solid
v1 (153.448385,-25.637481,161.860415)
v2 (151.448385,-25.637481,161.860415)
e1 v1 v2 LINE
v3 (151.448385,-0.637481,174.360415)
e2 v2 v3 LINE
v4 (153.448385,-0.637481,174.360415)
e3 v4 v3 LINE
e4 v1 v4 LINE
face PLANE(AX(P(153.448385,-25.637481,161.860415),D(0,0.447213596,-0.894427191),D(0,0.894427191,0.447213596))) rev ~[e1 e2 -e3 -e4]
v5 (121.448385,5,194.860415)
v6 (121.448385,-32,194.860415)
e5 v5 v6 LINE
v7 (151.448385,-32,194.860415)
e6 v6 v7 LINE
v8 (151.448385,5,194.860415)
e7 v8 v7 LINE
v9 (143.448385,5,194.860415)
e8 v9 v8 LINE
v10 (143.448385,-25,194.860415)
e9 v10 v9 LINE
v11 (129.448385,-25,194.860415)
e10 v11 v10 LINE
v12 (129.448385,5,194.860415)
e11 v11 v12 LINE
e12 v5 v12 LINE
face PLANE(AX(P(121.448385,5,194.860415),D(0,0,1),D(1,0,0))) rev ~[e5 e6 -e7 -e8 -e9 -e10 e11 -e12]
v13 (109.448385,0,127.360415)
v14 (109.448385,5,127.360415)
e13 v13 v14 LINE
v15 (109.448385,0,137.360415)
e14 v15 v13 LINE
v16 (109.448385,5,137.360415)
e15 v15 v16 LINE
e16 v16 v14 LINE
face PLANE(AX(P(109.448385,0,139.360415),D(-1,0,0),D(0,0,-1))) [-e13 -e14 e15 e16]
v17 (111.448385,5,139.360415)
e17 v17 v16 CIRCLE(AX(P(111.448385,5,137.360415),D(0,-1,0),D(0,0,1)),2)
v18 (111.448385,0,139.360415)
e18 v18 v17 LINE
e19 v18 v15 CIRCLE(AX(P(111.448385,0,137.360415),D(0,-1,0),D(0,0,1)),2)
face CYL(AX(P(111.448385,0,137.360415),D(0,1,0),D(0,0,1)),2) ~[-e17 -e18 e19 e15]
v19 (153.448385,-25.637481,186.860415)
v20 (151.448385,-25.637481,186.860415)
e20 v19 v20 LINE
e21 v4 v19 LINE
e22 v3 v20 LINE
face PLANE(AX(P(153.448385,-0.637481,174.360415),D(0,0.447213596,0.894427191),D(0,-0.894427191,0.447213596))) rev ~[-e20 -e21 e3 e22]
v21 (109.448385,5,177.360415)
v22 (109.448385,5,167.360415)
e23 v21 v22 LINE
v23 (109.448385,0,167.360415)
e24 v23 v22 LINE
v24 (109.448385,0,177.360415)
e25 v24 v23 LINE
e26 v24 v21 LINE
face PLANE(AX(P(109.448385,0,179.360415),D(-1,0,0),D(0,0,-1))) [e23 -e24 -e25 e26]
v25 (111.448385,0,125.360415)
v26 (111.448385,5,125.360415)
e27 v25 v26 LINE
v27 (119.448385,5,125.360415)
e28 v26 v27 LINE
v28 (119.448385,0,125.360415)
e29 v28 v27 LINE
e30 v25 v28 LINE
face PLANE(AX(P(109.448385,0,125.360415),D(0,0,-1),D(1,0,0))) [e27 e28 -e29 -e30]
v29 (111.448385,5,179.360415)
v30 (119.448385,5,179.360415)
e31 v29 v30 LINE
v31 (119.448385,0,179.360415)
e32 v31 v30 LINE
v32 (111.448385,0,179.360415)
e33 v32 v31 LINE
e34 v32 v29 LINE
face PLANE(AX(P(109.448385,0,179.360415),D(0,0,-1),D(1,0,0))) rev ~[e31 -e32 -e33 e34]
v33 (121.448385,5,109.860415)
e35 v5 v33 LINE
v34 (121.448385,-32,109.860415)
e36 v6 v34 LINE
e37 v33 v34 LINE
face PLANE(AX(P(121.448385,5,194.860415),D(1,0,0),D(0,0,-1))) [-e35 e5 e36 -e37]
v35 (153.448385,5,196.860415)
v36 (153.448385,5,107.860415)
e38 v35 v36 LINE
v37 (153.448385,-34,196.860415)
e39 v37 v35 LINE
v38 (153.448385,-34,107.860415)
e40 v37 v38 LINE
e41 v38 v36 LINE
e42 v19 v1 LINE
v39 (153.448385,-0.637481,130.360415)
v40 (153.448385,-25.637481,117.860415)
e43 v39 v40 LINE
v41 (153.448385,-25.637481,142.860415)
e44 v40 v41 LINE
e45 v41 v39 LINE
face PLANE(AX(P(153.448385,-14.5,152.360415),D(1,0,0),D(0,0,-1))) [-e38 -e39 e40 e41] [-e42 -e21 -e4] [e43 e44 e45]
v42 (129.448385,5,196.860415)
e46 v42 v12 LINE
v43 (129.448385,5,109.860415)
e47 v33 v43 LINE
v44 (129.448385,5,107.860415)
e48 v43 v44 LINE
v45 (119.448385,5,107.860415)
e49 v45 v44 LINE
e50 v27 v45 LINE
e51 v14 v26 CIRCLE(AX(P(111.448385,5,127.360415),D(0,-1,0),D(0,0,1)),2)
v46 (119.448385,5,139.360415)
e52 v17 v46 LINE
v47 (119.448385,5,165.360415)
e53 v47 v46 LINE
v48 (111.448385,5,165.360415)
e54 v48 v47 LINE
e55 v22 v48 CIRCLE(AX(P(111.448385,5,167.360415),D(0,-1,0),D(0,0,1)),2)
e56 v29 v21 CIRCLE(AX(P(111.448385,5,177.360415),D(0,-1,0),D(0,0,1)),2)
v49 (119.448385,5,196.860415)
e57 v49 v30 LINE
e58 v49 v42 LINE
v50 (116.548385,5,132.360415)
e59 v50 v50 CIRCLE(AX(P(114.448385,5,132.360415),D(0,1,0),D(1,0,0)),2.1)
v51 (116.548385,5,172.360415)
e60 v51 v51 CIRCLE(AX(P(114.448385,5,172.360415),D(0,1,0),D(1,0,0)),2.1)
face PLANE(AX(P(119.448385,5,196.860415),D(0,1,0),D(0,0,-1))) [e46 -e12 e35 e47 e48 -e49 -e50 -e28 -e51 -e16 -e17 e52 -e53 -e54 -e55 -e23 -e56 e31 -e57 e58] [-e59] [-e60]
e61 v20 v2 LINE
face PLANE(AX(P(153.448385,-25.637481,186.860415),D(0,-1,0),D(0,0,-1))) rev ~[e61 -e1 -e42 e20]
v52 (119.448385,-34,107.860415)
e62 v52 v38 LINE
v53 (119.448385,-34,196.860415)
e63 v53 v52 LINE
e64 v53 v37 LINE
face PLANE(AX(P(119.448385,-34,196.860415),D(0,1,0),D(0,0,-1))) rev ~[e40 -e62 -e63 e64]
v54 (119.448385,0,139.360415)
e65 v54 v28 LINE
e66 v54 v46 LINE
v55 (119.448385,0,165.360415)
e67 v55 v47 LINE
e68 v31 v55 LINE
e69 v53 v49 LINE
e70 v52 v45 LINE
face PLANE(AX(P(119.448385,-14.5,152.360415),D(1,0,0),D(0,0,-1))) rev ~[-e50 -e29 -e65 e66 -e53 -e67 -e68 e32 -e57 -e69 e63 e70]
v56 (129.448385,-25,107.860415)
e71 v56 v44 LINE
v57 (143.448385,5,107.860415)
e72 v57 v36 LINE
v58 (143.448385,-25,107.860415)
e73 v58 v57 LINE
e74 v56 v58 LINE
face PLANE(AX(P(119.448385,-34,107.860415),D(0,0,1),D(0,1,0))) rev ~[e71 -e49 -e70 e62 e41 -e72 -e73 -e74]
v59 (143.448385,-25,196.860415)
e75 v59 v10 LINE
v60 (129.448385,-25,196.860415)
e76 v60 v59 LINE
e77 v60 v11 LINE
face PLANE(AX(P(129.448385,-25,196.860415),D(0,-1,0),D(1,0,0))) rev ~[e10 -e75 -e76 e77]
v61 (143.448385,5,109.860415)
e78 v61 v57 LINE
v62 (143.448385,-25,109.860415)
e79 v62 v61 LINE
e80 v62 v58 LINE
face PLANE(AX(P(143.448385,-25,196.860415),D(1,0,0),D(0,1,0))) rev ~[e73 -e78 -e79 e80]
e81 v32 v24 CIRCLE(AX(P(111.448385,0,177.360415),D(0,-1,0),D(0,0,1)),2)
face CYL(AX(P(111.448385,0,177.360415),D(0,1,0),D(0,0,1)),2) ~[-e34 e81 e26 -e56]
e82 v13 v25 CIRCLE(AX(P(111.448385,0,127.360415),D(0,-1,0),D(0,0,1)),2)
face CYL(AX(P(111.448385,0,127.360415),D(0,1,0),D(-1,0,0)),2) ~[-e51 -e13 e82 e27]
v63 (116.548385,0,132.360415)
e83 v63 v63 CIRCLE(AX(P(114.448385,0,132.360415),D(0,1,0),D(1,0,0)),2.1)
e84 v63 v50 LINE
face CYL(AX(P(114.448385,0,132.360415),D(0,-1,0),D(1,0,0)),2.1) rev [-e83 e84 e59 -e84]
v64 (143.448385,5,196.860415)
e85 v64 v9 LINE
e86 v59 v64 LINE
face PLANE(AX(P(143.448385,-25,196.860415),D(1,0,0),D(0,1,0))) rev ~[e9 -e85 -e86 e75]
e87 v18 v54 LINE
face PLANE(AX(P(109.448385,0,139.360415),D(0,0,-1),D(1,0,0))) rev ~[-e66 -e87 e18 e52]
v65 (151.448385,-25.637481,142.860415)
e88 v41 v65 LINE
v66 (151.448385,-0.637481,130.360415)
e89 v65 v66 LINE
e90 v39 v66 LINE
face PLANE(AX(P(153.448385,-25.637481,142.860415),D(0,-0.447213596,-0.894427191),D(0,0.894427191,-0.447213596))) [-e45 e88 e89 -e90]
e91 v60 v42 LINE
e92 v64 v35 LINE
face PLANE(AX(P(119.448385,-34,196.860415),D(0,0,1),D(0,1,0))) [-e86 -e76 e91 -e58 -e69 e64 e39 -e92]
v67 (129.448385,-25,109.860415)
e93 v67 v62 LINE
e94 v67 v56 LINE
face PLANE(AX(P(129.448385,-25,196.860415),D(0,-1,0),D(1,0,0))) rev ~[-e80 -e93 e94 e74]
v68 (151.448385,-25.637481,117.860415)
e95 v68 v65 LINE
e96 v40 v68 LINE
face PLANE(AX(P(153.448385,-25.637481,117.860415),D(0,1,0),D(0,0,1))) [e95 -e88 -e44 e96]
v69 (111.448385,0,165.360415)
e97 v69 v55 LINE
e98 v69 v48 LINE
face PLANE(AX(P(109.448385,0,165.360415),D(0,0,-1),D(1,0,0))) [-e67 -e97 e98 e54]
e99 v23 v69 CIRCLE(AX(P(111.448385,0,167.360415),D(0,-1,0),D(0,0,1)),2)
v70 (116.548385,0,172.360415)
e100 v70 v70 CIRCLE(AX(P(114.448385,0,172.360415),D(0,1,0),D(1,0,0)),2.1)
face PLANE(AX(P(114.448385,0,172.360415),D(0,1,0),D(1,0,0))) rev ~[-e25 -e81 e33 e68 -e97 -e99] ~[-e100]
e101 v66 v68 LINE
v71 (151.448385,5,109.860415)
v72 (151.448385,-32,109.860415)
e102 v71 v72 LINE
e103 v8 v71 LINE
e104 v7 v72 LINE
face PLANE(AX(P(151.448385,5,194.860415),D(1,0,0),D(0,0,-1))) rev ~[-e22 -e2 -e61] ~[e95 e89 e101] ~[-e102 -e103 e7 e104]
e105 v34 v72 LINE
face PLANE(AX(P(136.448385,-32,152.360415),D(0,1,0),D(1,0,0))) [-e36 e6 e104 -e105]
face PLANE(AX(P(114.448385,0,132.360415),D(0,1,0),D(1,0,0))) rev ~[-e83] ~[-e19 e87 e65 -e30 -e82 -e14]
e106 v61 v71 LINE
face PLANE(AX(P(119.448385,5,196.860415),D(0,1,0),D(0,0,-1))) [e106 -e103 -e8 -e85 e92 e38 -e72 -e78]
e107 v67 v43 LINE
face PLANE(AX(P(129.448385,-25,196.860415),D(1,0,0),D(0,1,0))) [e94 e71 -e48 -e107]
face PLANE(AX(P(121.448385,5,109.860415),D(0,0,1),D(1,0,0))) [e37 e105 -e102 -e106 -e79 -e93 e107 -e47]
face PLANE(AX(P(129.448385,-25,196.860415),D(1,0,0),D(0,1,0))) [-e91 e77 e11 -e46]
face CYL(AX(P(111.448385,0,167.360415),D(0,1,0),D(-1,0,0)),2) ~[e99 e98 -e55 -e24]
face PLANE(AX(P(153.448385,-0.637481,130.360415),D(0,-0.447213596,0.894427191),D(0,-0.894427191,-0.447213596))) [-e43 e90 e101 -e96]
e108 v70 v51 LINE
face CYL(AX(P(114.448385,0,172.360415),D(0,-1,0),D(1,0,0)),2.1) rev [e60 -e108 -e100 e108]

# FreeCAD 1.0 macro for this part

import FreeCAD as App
import Part
import Sketcher

V = App.Vector
Q = App.Units.Quantity


def edges_at(feature, points):
    """Names of the edges that pass closest to the given points."""
    edges = feature.Shape.Edges
    near = lambda p: min(range(len(edges)), key=lambda i: edges[i].distToShape(Part.Vertex(*p))[0])
    return sorted({f"Edge{near(p) + 1}" for p in points})


def add_polygon(sketch, points):
    """Adds a closed chain of lines whose ends are joined by coincident constraints."""
    first, n = sketch.GeometryCount, len(points)
    for a, b in zip(points, points[1:] + points[:1]):
        sketch.addGeometry(Part.LineSegment(App.Vector(*a, 0), App.Vector(*b, 0)), False)
    for i in range(n):
        sketch.addConstraint(Sketcher.Constraint("Coincident", first + i, 2, first + (i + 1) % n, 1))

doc = App.newDocument("Part")
params = doc.addObject("Spreadsheet::Sheet", "Params")
for row, (alias, value) in enumerate([
    ("sketch1_diameter", "4.2 mm"),
    ("sketch1_width", "10 mm"),
    ("sketch1_height", "14 mm"),
    ("pad1_length", "5 mm"),
    ("sketch2_diameter", "4.2 mm"),
    ("sketch2_width", "10 mm"),
    ("sketch2_height", "14 mm"),
    ("pad2_length", "5 mm"),
    ("sketch3_width", "39 mm"),
    ("sketch3_height", "89 mm"),
    ("pad3_length", "2 mm"),
    ("sketch4_width", "39 mm"),
    ("sketch4_width2", "37 mm"),
    ("sketch4_height", "2 mm"),
    ("sketch4_height2", "89 mm"),
    ("pad4_length", "32 mm"),
    ("sketch5_width", "2 mm"),
    ("sketch5_height", "85 mm"),
    ("pad5_length", "37 mm"),
    ("sketch6_width", "14 mm"),
    ("sketch6_height", "30 mm"),
    ("pocket1_length", "200 mm"),
    ("sketch7_width", "20 mm"),
    ("pocket2_length", "16 mm"),
    ("fillet_radius", "2 mm"),
    ("pocket3_length", "32 mm"),
    ("sketch9_width", "35 mm"),
    ("sketch9_height", "100 mm"),
    ("pad6_length", "2 mm"),
    ("sketch10_width", "4 mm"),
    ("sketch10_height", "89 mm"),
    ("pocket4_length", "10 mm"),
    ("sketch11_width", "35 mm"),
    ("sketch11_width2", "37 mm"),
    ("sketch11_height", "2 mm"),
    ("sketch11_height2", "104 mm"),
    ("pad7_length", "25 mm"),
    ("sketch12_width", "37 mm"),
    ("sketch12_width2", "35 mm"),
    ("sketch12_height", "104 mm"),
    ("sketch12_height2", "2 mm"),
    ("pad8_length", "2 mm"),
    ("sketch13_width", "37 mm"),
    ("sketch13_height", "104 mm"),
    ("sketch13_height2", "20 mm"),
    ("pad9_length", "2 mm"),
    ("sketch14_width", "13 mm"),
    ("sketch14_height", "30 mm"),
    ("pocket5_length", "104 mm"),
    ("pocket6_length", "27 mm"),
    ("pocket7_length", "2 mm"),
    ("sketch17_width", "39 mm"),
    ("sketch17_height", "89 mm"),
    ("pad10_length", "34 mm"),
    ("sketch18_width", "30 mm"),
    ("sketch18_height", "85 mm"),
    ("pocket8_length", "37 mm"),
    ("sketch19_width", "14 mm"),
    ("sketch19_height", "30 mm"),
    ("pocket9_length", "93 mm"),
    ("sketch20_height", "25 mm"),
    ("pocket10_length", "17 mm"),
], start=1):
    params.set(f"A{row}", alias)
    params.set(f"B{row}", "=" + value)
    params.setAlias(f"B{row}", alias)

body = doc.addObject("PartDesign::Body", "Body")

# Sketch on XZ plane
sketch1 = doc.addObject("Sketcher::SketchObject", "Sketch")
body.addObject(sketch1)
sketch1.AttachmentSupport = (doc.XZ_Plane, [""])
sketch1.MapMode = "FlatFace"
add_polygon(sketch1, [(109.4, 125.4), (109.4, 139.4), (119.4, 139.4), (119.4, 125.4)])  # lines 0-3
sketch1.addGeometry(Part.Circle(V(114.4, 132.4, 0), V(0, 0, 1), 2.1), False)  # 4
sketch1.addConstraint([
    Sketcher.Constraint("Vertical", 0),
    Sketcher.Constraint("Horizontal", 1),
    Sketcher.Constraint("Vertical", 2),
    Sketcher.Constraint("Horizontal", 3),
    Sketcher.Constraint("Diameter", 4, 4.2),
    Sketcher.Constraint("DistanceX", 1, 1, 1, 2, 10.0),
    Sketcher.Constraint("DistanceY", 0, 1, 0, 2, 14.0),
    Sketcher.Constraint("DistanceX", 0, 2, 4, 3, 5.0),
    Sketcher.Constraint("DistanceY", 4, 3, 0, 2, 7.0),
    Sketcher.Constraint("DistanceX", -1, 1, 4, 3, 114.448385),
    Sketcher.Constraint("DistanceY", -1, 1, 4, 3, 132.360415),
])
sketch1.setExpression("Constraints[8]", "Params.sketch1_diameter")
sketch1.setExpression("Constraints[9]", "Params.sketch1_width")
sketch1.setExpression("Constraints[10]", "Params.sketch1_height")
pad1 = doc.addObject("PartDesign::Pad", "Pad")
body.addObject(pad1)
pad1.Profile = sketch1
pad1.setExpression("Length", "Params.pad1_length")
pad1.Reversed = True
body2 = doc.addObject("PartDesign::Body", "Body001")

# Sketch on XZ plane
sketch2 = doc.addObject("Sketcher::SketchObject", "Sketch001")
body2.addObject(sketch2)
sketch2.AttachmentSupport = (doc.getObject("XZ_Plane001"), [""])
sketch2.MapMode = "FlatFace"
add_polygon(sketch2, [(109.4, 165.4), (109.4, 179.4), (119.4, 179.4), (119.4, 165.4)])  # lines 0-3
sketch2.addGeometry(Part.Circle(V(114.4, 172.4, 0), V(0, 0, 1), 2.1), False)  # 4
sketch2.addConstraint([
    Sketcher.Constraint("Vertical", 0),
    Sketcher.Constraint("Horizontal", 1),
    Sketcher.Constraint("Vertical", 2),
    Sketcher.Constraint("Horizontal", 3),
    Sketcher.Constraint("Diameter", 4, 4.2),
    Sketcher.Constraint("DistanceX", 1, 1, 1, 2, 10.0),
    Sketcher.Constraint("DistanceY", 0, 1, 0, 2, 14.0),
    Sketcher.Constraint("DistanceX", 0, 2, 4, 3, 5.0),
    Sketcher.Constraint("DistanceY", 4, 3, 0, 2, 7.0),
    Sketcher.Constraint("DistanceX", -1, 1, 4, 3, 114.448385),
    Sketcher.Constraint("DistanceY", -1, 1, 4, 3, 172.360415),
])
sketch2.setExpression("Constraints[8]", "Params.sketch2_diameter")
sketch2.setExpression("Constraints[9]", "Params.sketch2_width")
sketch2.setExpression("Constraints[10]", "Params.sketch2_height")
pad2 = doc.addObject("PartDesign::Pad", "Pad001")
body2.addObject(pad2)
pad2.Profile = sketch2
pad2.setExpression("Length", "Params.pad2_length")
pad2.Reversed = True
body.AllowCompound = True
doc.recompute()

boolean = doc.addObject("PartDesign::Boolean", "Boolean")
body.addObject(boolean)
boolean.Type = "Fuse"
boolean.addObjects([body2])

# Sketch on YZ plane
sketch3 = doc.addObject("Sketcher::SketchObject", "Sketch002")
body.addObject(sketch3)
sketch3.AttachmentSupport = (doc.YZ_Plane, [""])
sketch3.MapMode = "FlatFace"
sketch3.AttachmentOffset = App.Placement(V(0, 0, 119.448385), App.Rotation())
add_polygon(sketch3, [(5, 197), (-34, 197), (-34, 108), (5, 108)])  # lines 0-3
sketch3.addConstraint([
    Sketcher.Constraint("Horizontal", 0),
    Sketcher.Constraint("Vertical", 1),
    Sketcher.Constraint("Horizontal", 2),
    Sketcher.Constraint("Vertical", 3),
    Sketcher.Constraint("DistanceX", 0, 2, 0, 1, 39.0),
    Sketcher.Constraint("DistanceY", 1, 2, 1, 1, 89.0),
    Sketcher.Constraint("DistanceX", 0, 2, -1, 1, 34.0),
    Sketcher.Constraint("DistanceY", -1, 1, 0, 2, 196.860415),
])
sketch3.setExpression("Constraints[8]", "Params.sketch3_width")
sketch3.setExpression("Constraints[9]", "Params.sketch3_height")
pad3 = doc.addObject("PartDesign::Pad", "Pad002")
body.addObject(pad3)
pad3.Profile = sketch3
pad3.setExpression("Length", "Params.pad3_length")

# Sketch on YZ plane
sketch4 = doc.addObject("Sketcher::SketchObject", "Sketch003")
body.addObject(sketch4)
sketch4.AttachmentSupport = (doc.YZ_Plane, [""])
sketch4.MapMode = "FlatFace"
sketch4.AttachmentOffset = App.Placement(V(0, 0, 121.448385), App.Rotation())
add_polygon(sketch4, [(5, 194.9), (5, 196.9), (-34, 196.9), (-34, 107.9), (5, 107.9), (5, 109.9), (-32, 109.9), (-32, 194.9)])  # lines 0-7
sketch4.addConstraint([
    Sketcher.Constraint("Vertical", 0),
    Sketcher.Constraint("Horizontal", 1),
    Sketcher.Constraint("Vertical", 2),
    Sketcher.Constraint("Horizontal", 3),
    Sketcher.Constraint("Vertical", 4),
    Sketcher.Constraint("Horizontal", 5),
    Sketcher.Constraint("Vertical", 6),
    Sketcher.Constraint("Horizontal", 7),
    Sketcher.Constraint("Vertical", 0, 2, 3, 2),
    Sketcher.Constraint("Equal", 0, 4),
    Sketcher.Constraint("DistanceX", 1, 2, 1, 1, 39.0),
    Sketcher.Constraint("DistanceX", 5, 2, 5, 1, 37.0),
    Sketcher.Constraint("DistanceY", 0, 1, 0, 2, 2.0),
    Sketcher.Constraint("DistanceY", 2, 2, 2, 1, 89.0),
    Sketcher.Constraint("DistanceX", -1, 1, 0, 2, 5.0),
    Sketcher.Constraint("DistanceY", -1, 1, 0, 2, 196.860415),
])
sketch4.setExpression("Constraints[18]", "Params.sketch4_width")
sketch4.setExpression("Constraints[19]", "Params.sketch4_width2")
sketch4.setExpression("Constraints[20]", "Params.sketch4_height")
sketch4.setExpression("Constraints[21]", "Params.sketch4_height2")
pad4 = doc.addObject("PartDesign::Pad", "Pad003")
body.addObject(pad4)
pad4.Profile = sketch4
pad4.setExpression("Length", "Params.pad4_length")

# Sketch on XZ plane
sketch5 = doc.addObject("Sketcher::SketchObject", "Sketch004")
body.addObject(sketch5)
sketch5.AttachmentSupport = (doc.XZ_Plane, [""])
sketch5.MapMode = "FlatFace"
sketch5.AttachmentOffset = App.Placement(V(0, 0, 32), App.Rotation())
add_polygon(sketch5, [(151.4, 109.9), (151.4, 194.9), (153.4, 194.9), (153.4, 109.9)])  # lines 0-3
sketch5.addConstraint([
    Sketcher.Constraint("Vertical", 0),
    Sketcher.Constraint("Horizontal", 1),
    Sketcher.Constraint("Vertical", 2),
    Sketcher.Constraint("Horizontal", 3),
    Sketcher.Constraint("DistanceX", 1, 1, 1, 2, 2.0),
    Sketcher.Constraint("DistanceY", 0, 1, 0, 2, 85.0),
    Sketcher.Constraint("DistanceX", -1, 1, 0, 2, 151.448385),
    Sketcher.Constraint("DistanceY", -1, 1, 0, 2, 194.860415),
])
sketch5.setExpression("Constraints[8]", "Params.sketch5_width")
sketch5.setExpression("Constraints[9]", "Params.sketch5_height")
pad5 = doc.addObject("PartDesign::Pad", "Pad004")
body.addObject(pad5)
pad5.Profile = sketch5
pad5.setExpression("Length", "Params.pad5_length")
pad5.Reversed = True

# Sketch on XY plane
sketch6 = doc.addObject("Sketcher::SketchObject", "Sketch005")
body.addObject(sketch6)
sketch6.AttachmentSupport = (doc.XY_Plane, [""])
sketch6.MapMode = "FlatFace"
sketch6.AttachmentOffset = App.Placement(V(0, 0, 196.860415), App.Rotation())
add_polygon(sketch6, [(129, 5), (129, -25), (143, -25), (143, 5)])  # lines 0-3
sketch6.addConstraint([
    Sketcher.Constraint("Vertical", 0),
    Sketcher.Constraint("Horizontal", 1),
    Sketcher.Constraint("Vertical", 2),
    Sketcher.Constraint("Horizontal", 3),
    Sketcher.Constraint("DistanceX", 1, 1, 1, 2, 14.0),
    Sketcher.Constraint("DistanceY", 0, 2, 0, 1, 30.0),
    Sketcher.Constraint("DistanceY", 0, 2, -1, 1, 25.0),
    Sketcher.Constraint("DistanceX", -1, 1, 0, 2, 129.448385),
])
sketch6.setExpression("Constraints[8]", "Params.sketch6_width")
sketch6.setExpression("Constraints[9]", "Params.sketch6_height")
pocket1 = doc.addObject("PartDesign::Pocket", "Pocket")
body.addObject(pocket1)
pocket1.Profile = sketch6
pocket1.setExpression("Length", "Params.pocket1_length")

# Sketch on YZ plane
sketch7 = doc.addObject("Sketcher::SketchObject", "Sketch006")
body.addObject(sketch7)
sketch7.AttachmentSupport = (doc.YZ_Plane, [""])
sketch7.MapMode = "FlatFace"
sketch7.AttachmentOffset = App.Placement(V(0, 0, 153.448385), App.Rotation())
add_polygon(sketch7, [(-4, 189), (-24, 189), (-24, 169), (-4, 169)])  # lines 0-3
add_polygon(sketch7, [(-4, 162), (-24, 162), (-24, 142), (-4, 142)])  # lines 4-7
add_polygon(sketch7, [(-4, 135), (-24, 135), (-24, 115), (-4, 115)])  # lines 8-11
sketch7.addConstraint([
    Sketcher.Constraint("Horizontal", 0),
    Sketcher.Constraint("Vertical", 1),
    Sketcher.Constraint("Horizontal", 2),
    Sketcher.Constraint("Vertical", 3),
    Sketcher.Constraint("Horizontal", 4),
    Sketcher.Constraint("Vertical", 5),
    Sketcher.Constraint("Horizontal", 6),
    Sketcher.Constraint("Vertical", 7),
    Sketcher.Constraint("Horizontal", 8),
    Sketcher.Constraint("Vertical", 9),
    Sketcher.Constraint("Horizontal", 10),
    Sketcher.Constraint("Vertical", 11),
    Sketcher.Constraint("Vertical", 1, 2, 4, 2),
    Sketcher.Constraint("Vertical", 3, 2, 6, 2),
    Sketcher.Constraint("Vertical", 5, 2, 8, 2),
    Sketcher.Constraint("Vertical", 7, 2, 10, 2),
    Sketcher.Constraint("Equal", 10, 1),
    Sketcher.Constraint("Equal", 3, 5),
    Sketcher.Constraint("Equal", 7, 9),
    Sketcher.Constraint("DistanceX", 0, 2, 0, 1, 20.0),
    Sketcher.Constraint("DistanceY", 4, 2, 1, 2, 7.0),
    Sketcher.Constraint("DistanceY", 8, 2, 5, 2, 7.0),
    Sketcher.Constraint("DistanceX", 0, 2, -1, 1, 24.5),
    Sketcher.Constraint("DistanceY", -1, 1, 0, 2, 189.360415),
])
sketch7.setExpression("Constraints[31]", "Params.sketch7_width")
pocket2 = doc.addObject("PartDesign::Pocket", "Pocket001")
body.addObject(pocket2)
pocket2.Profile = sketch7
pocket2.setExpression("Length", "Params.pocket2_length")
doc.recompute()

fillet = doc.addObject("PartDesign::Fillet", "Fillet")
body.addObject(fillet)
fillet.Base = (pocket2, edges_at(pocket2, [
    (109.448, 2.5, 139.36),
    (109.448, 2.5, 125.36),
    (109.448, 2.5, 179.36),
    (109.448, 2.5, 165.36),
]))
fillet.setExpression("Radius", "Params.fillet_radius")

# Sketch on YZ plane
sketch8 = doc.addObject("Sketcher::SketchObject", "Sketch007")
body.addObject(sketch8)
sketch8.AttachmentSupport = (doc.YZ_Plane, [""])
sketch8.MapMode = "FlatFace"
sketch8.AttachmentOffset = App.Placement(V(0, 0, 153.448385), App.Rotation())
add_polygon(sketch8, [(12, 208), (-43, 208), (-43, 89), (12, 89)])  # lines 0-3
sketch8.addConstraint([
    Sketcher.Constraint("Horizontal", 0),
    Sketcher.Constraint("Vertical", 1),
    Sketcher.Constraint("Horizontal", 2),
    Sketcher.Constraint("Vertical", 3),
    Sketcher.Constraint("DistanceX", 0, 2, 0, 1, 55.607641),
    Sketcher.Constraint("DistanceY", 1, 2, 1, 1, 119.619461),
    Sketcher.Constraint("DistanceX", 0, 2, -1, 1, 43.138837),
    Sketcher.Constraint("DistanceY", -1, 1, 0, 2, 208.388265),
])
pocket3 = doc.addObject("PartDesign::Pocket", "Pocket002")
body.addObject(pocket3)
pocket3.Profile = sketch8
pocket3.setExpression("Length", "Params.pocket3_length")

# Sketch on YZ plane
sketch9 = doc.addObject("Sketcher::SketchObject", "Sketch008")
body.addObject(sketch9)
sketch9.AttachmentSupport = (doc.YZ_Plane, [""])
sketch9.MapMode = "FlatFace"
sketch9.AttachmentOffset = App.Placement(V(0, 0, 121.448385), App.Rotation())
add_polygon(sketch9, [(5, 202), (-30, 202), (-30, 102), (5, 102)])  # lines 0-3
sketch9.addConstraint([
    Sketcher.Constraint("Horizontal", 0),
    Sketcher.Constraint("Vertical", 1),
    Sketcher.Constraint("Horizontal", 2),
    Sketcher.Constraint("Vertical", 3),
    Sketcher.Constraint("DistanceX", 0, 2, 0, 1, 35.0),
    Sketcher.Constraint("DistanceY", 1, 2, 1, 1, 100.0),
    Sketcher.Constraint("DistanceX", 0, 2, -1, 1, 30.0),
    Sketcher.Constraint("DistanceY", -1, 1, 0, 2, 202.360415),
])
sketch9.setExpression("Constraints[8]", "Params.sketch9_width")
sketch9.setExpression("Constraints[9]", "Params.sketch9_height")
pad6 = doc.addObject("PartDesign::Pad", "Pad005")
body.addObject(pad6)
pad6.Profile = sketch9
pad6.setExpression("Length", "Params.pad6_length")
pad6.Reversed = True

# Sketch on YZ plane
sketch10 = doc.addObject("Sketcher::SketchObject", "Sketch009")
body.addObject(sketch10)
sketch10.AttachmentSupport = (doc.YZ_Plane, [""])
sketch10.MapMode = "FlatFace"
sketch10.AttachmentOffset = App.Placement(V(0, 0, 121.448385), App.Rotation())
add_polygon(sketch10, [(-30, 196.9), (-34, 196.9), (-34, 107.9), (-30, 107.9)])  # lines 0-3
sketch10.addConstraint([
    Sketcher.Constraint("Horizontal", 0),
    Sketcher.Constraint("Vertical", 1),
    Sketcher.Constraint("Horizontal", 2),
    Sketcher.Constraint("Vertical", 3),
    Sketcher.Constraint("DistanceX", 0, 2, 0, 1, 4.0),
    Sketcher.Constraint("DistanceY", 1, 2, 1, 1, 89.0),
    Sketcher.Constraint("DistanceX", 0, 2, -1, 1, 34.0),
    Sketcher.Constraint("DistanceY", -1, 1, 0, 2, 196.860415),
])
sketch10.setExpression("Constraints[8]", "Params.sketch10_width")
sketch10.setExpression("Constraints[9]", "Params.sketch10_height")
pocket4 = doc.addObject("PartDesign::Pocket", "Pocket003")
body.addObject(pocket4)
pocket4.Profile = sketch10
pocket4.setExpression("Length", "Params.pocket4_length")
body3 = doc.addObject("PartDesign::Body", "Body002")

# Sketch on YZ plane
sketch11 = doc.addObject("Sketcher::SketchObject", "Sketch010")
body3.addObject(sketch11)
sketch11.AttachmentSupport = (doc.getObject("YZ_Plane002"), [""])
sketch11.MapMode = "FlatFace"
sketch11.AttachmentOffset = App.Placement(V(0, 0, 121.448385), App.Rotation())
add_polygon(sketch11, [(-30, 202.4), (5, 202.4), (5, 204.4), (-32, 204.4), (-32, 100.4), (5, 100.4), (5, 102.4), (-30, 102.4)])  # lines 0-7
sketch11.addConstraint([
    Sketcher.Constraint("Horizontal", 0),
    Sketcher.Constraint("Vertical", 1),
    Sketcher.Constraint("Horizontal", 2),
    Sketcher.Constraint("Vertical", 3),
    Sketcher.Constraint("Horizontal", 4),
    Sketcher.Constraint("Vertical", 5),
    Sketcher.Constraint("Horizontal", 6),
    Sketcher.Constraint("Vertical", 7),
    Sketcher.Constraint("Vertical", 1, 2, 4, 2),
    Sketcher.Constraint("Equal", 1, 5),
    Sketcher.Constraint("DistanceX", 0, 1, 0, 2, 35.0),
    Sketcher.Constraint("DistanceX", 2, 2, 2, 1, 37.0),
    Sketcher.Constraint("DistanceY", 1, 1, 1, 2, 2.0),
    Sketcher.Constraint("DistanceY", 3, 2, 3, 1, 104.0),
    Sketcher.Constraint("DistanceX", -1, 1, 0, 2, 5.0),
    Sketcher.Constraint("DistanceY", -1, 1, 0, 2, 202.360415),
])
sketch11.setExpression("Constraints[18]", "Params.sketch11_width")
sketch11.setExpression("Constraints[19]", "Params.sketch11_width2")
sketch11.setExpression("Constraints[20]", "Params.sketch11_height")
sketch11.setExpression("Constraints[21]", "Params.sketch11_height2")
pad7 = doc.addObject("PartDesign::Pad", "Pad006")
body3.addObject(pad7)
pad7.Profile = sketch11
pad7.setExpression("Length", "Params.pad7_length")
body.AllowCompound = True
doc.recompute()

boolean2 = doc.addObject("PartDesign::Boolean", "Boolean001")
body.addObject(boolean2)
boolean2.Type = "Fuse"
boolean2.addObjects([body3])

# Sketch on YZ plane
sketch12 = doc.addObject("Sketcher::SketchObject", "Sketch011")
body.addObject(sketch12)
sketch12.AttachmentSupport = (doc.YZ_Plane, [""])
sketch12.MapMode = "FlatFace"
sketch12.AttachmentOffset = App.Placement(V(0, 0, 121.448385), App.Rotation())
add_polygon(sketch12, [(5, 100.4), (-32, 100.4), (-32, 204.4), (5, 204.4), (5, 202.4), (-30, 202.4), (-30, 102.4), (5, 102.4)])  # lines 0-7
sketch12.addConstraint([
    Sketcher.Constraint("Horizontal", 0),
    Sketcher.Constraint("Vertical", 1),
    Sketcher.Constraint("Horizontal", 2),
    Sketcher.Constraint("Vertical", 3),
    Sketcher.Constraint("Horizontal", 4),
    Sketcher.Constraint("Vertical", 5),
    Sketcher.Constraint("Horizontal", 6),
    Sketcher.Constraint("Vertical", 7),
    Sketcher.Constraint("Vertical", 3, 2, 6, 2),
    Sketcher.Constraint("Equal", 3, 7),
    Sketcher.Constraint("DistanceX", 0, 2, 0, 1, 37.0),
    Sketcher.Constraint("DistanceX", 4, 2, 4, 1, 35.0),
    Sketcher.Constraint("DistanceY", 1, 1, 1, 2, 104.0),
    Sketcher.Constraint("DistanceY", 3, 2, 3, 1, 2.0),
    Sketcher.Constraint("DistanceX", 0, 2, -1, 1, 32.0),
    Sketcher.Constraint("DistanceY", -1, 1, 0, 2, 100.360415),
])
sketch12.setExpression("Constraints[18]", "Params.sketch12_width")
sketch12.setExpression("Constraints[19]", "Params.sketch12_width2")
sketch12.setExpression("Constraints[20]", "Params.sketch12_height")
sketch12.setExpression("Constraints[21]", "Params.sketch12_height2")
pad8 = doc.addObject("PartDesign::Pad", "Pad007")
body.addObject(pad8)
pad8.Profile = sketch12
pad8.setExpression("Length", "Params.pad8_length")
pad8.Reversed = True

# Sketch on YZ plane
sketch13 = doc.addObject("Sketcher::SketchObject", "Sketch012")
body.addObject(sketch13)
sketch13.AttachmentSupport = (doc.YZ_Plane, [""])
sketch13.MapMode = "FlatFace"
sketch13.AttachmentOffset = App.Placement(V(0, 0, 146.448385), App.Rotation())
add_polygon(sketch13, [(5, 204), (-32, 204), (-32, 100), (5, 100)])  # lines 0-3
add_polygon(sketch13, [(-22, 176), (-22, 196), (-1, 186)])  # lines 4-6
add_polygon(sketch13, [(-22, 142), (-22, 162), (-1, 152)])  # lines 7-9
add_polygon(sketch13, [(-22, 109), (-22, 129), (-1, 119)])  # lines 10-12
sketch13.addConstraint([
    Sketcher.Constraint("Horizontal", 0),
    Sketcher.Constraint("Vertical", 1),
    Sketcher.Constraint("Horizontal", 2),
    Sketcher.Constraint("Vertical", 3),
    Sketcher.Constraint("Vertical", 4),
    Sketcher.Constraint("Vertical", 7),
    Sketcher.Constraint("Vertical", 10),
    Sketcher.Constraint("Parallel", 5, 8),
    Sketcher.Constraint("Parallel", 6, 9),
    Sketcher.Constraint("Parallel", 8, 11),
    Sketcher.Constraint("Parallel", 9, 12),
    Sketcher.Constraint("Vertical", 6, 2, 7, 2),
    Sketcher.Constraint("Vertical", 5, 2, 8, 2),
    Sketcher.Constraint("Vertical", 9, 2, 10, 2),
    Sketcher.Constraint("Vertical", 8, 2, 11, 2),
    Sketcher.Constraint("Equal", 5, 6),
    Sketcher.Constraint("DistanceX", 0, 2, 0, 1, 37.0),
    Sketcher.Constraint("DistanceY", 1, 2, 1, 1, 104.0),
    Sketcher.Constraint("DistanceY", 4, 1, 4, 2, 20.0),
    Sketcher.Constraint("Angle", 5, Q("-25 deg")),
    Sketcher.Constraint("DistanceX", 0, 2, -1, 1, 32.0),
    Sketcher.Constraint("DistanceX", 4, 2, -1, 1, 22.0),
    Sketcher.Constraint("DistanceY", 7, 2, 0, 2, 42.0),
    Sketcher.Constraint("DistanceY", -1, 1, 4, 2, 195.798081),
    Sketcher.Constraint("DistanceY", -1, 1, 10, 2, 128.922749),
    Sketcher.Constraint("DistanceY", -1, 1, 0, 2, 204.360415),
])
sketch13.setExpression("Constraints[29]", "Params.sketch13_width")
sketch13.setExpression("Constraints[30]", "Params.sketch13_height")
sketch13.setExpression("Constraints[31]", "Params.sketch13_height2")
pad9 = doc.addObject("PartDesign::Pad", "Pad008")
body.addObject(pad9)
pad9.Profile = sketch13
pad9.setExpression("Length", "Params.pad9_length")

# Sketch on XY plane
sketch14 = doc.addObject("Sketcher::SketchObject", "Sketch013")
body.addObject(sketch14)
sketch14.AttachmentSupport = (doc.XY_Plane, [""])
sketch14.MapMode = "FlatFace"
sketch14.AttachmentOffset = App.Placement(V(0, 0, 100.360415), App.Rotation())
add_polygon(sketch14, [(140, 20), (140, -10), (127, -10), (127, 20)])  # lines 0-3
sketch14.addConstraint([
    Sketcher.Constraint("Vertical", 0),
    Sketcher.Constraint("Horizontal", 1),
    Sketcher.Constraint("Vertical", 2),
    Sketcher.Constraint("Horizontal", 3),
    Sketcher.Constraint("DistanceX", 1, 2, 1, 1, 13.0),
    Sketcher.Constraint("DistanceY", 0, 2, 0, 1, 30.0),
    Sketcher.Constraint("DistanceY", 0, 2, -1, 1, 10.0),
    Sketcher.Constraint("DistanceX", -1, 1, 0, 2, 140.448385),
])
sketch14.setExpression("Constraints[8]", "Params.sketch14_width")
sketch14.setExpression("Constraints[9]", "Params.sketch14_height")
pocket5 = doc.addObject("PartDesign::Pocket", "Pocket004")
body.addObject(pocket5)
pocket5.Profile = sketch14
pocket5.setExpression("Length", "Params.pocket5_length")
pocket5.Reversed = True

# Sketch on YZ plane
sketch15 = doc.addObject("Sketcher::SketchObject", "Sketch014")
body.addObject(sketch15)
sketch15.AttachmentSupport = (doc.YZ_Plane, [""])
sketch15.MapMode = "FlatFace"
sketch15.AttachmentOffset = App.Placement(V(0, 0, 148.448385), App.Rotation())
add_polygon(sketch15, [(12, 209), (-39, 209), (-39, 95), (12, 95)])  # lines 0-3
sketch15.addConstraint([
    Sketcher.Constraint("Horizontal", 0),
    Sketcher.Constraint("Vertical", 1),
    Sketcher.Constraint("Horizontal", 2),
    Sketcher.Constraint("Vertical", 3),
    Sketcher.Constraint("DistanceX", 0, 2, 0, 1, 51.603679),
    Sketcher.Constraint("DistanceY", 1, 2, 1, 1, 113.891819),
    Sketcher.Constraint("DistanceX", 0, 2, -1, 1, 39.122051),
    Sketcher.Constraint("DistanceY", -1, 1, 0, 2, 209.19266),
])
pocket6 = doc.addObject("PartDesign::Pocket", "Pocket005")
body.addObject(pocket6)
pocket6.Profile = sketch15
pocket6.setExpression("Length", "Params.pocket6_length")

# Sketch on YZ plane
sketch16 = doc.addObject("Sketcher::SketchObject", "Sketch015")
body.addObject(sketch16)
sketch16.AttachmentSupport = (doc.YZ_Plane, [""])
sketch16.MapMode = "FlatFace"
sketch16.AttachmentOffset = App.Placement(V(0, 0, 121.448385), App.Rotation())
add_polygon(sketch16, [(11, 209), (-39, 209), (-39, 95), (11, 95)])  # lines 0-3
sketch16.addConstraint([
    Sketcher.Constraint("Horizontal", 0),
    Sketcher.Constraint("Vertical", 1),
    Sketcher.Constraint("Horizontal", 2),
    Sketcher.Constraint("Vertical", 3),
    Sketcher.Constraint("DistanceX", 0, 2, 0, 1, 49.785047),
    Sketcher.Constraint("DistanceY", 1, 2, 1, 1, 114.232813),
    Sketcher.Constraint("DistanceY", -1, 1, 0, 2, 208.965331),
    Sketcher.Constraint("DistanceX", -1, 1, 2, 2, 10.56302),
])
pocket7 = doc.addObject("PartDesign::Pocket", "Pocket006")
body.addObject(pocket7)
pocket7.Profile = sketch16
pocket7.setExpression("Length", "Params.pocket7_length")

# Sketch on YZ plane
sketch17 = doc.addObject("Sketcher::SketchObject", "Sketch016")
body.addObject(sketch17)
sketch17.AttachmentSupport = (doc.YZ_Plane, [""])
sketch17.MapMode = "FlatFace"
sketch17.AttachmentOffset = App.Placement(V(0, 0, 119.448385), App.Rotation())
add_polygon(sketch17, [(5, 197), (-34, 197), (-34, 108), (5, 108)])  # lines 0-3
sketch17.addConstraint([
    Sketcher.Constraint("Horizontal", 0),
    Sketcher.Constraint("Vertical", 1),
    Sketcher.Constraint("Horizontal", 2),
    Sketcher.Constraint("Vertical", 3),
    Sketcher.Constraint("DistanceX", 0, 2, 0, 1, 39.0),
    Sketcher.Constraint("DistanceY", 1, 2, 1, 1, 89.0),
    Sketcher.Constraint("DistanceX", 0, 2, -1, 1, 34.0),
    Sketcher.Constraint("DistanceY", -1, 1, 0, 2, 196.860415),
])
sketch17.setExpression("Constraints[8]", "Params.sketch17_width")
sketch17.setExpression("Constraints[9]", "Params.sketch17_height")
pad10 = doc.addObject("PartDesign::Pad", "Pad009")
body.addObject(pad10)
pad10.Profile = sketch17
pad10.setExpression("Length", "Params.pad10_length")

# Sketch on XZ plane
sketch18 = doc.addObject("Sketcher::SketchObject", "Sketch017")
body.addObject(sketch18)
sketch18.AttachmentSupport = (doc.XZ_Plane, [""])
sketch18.MapMode = "FlatFace"
sketch18.AttachmentOffset = App.Placement(V(0, 0, -5), App.Rotation())
add_polygon(sketch18, [(121, 110), (121, 195), (151, 195), (151, 110)])  # lines 0-3
sketch18.addConstraint([
    Sketcher.Constraint("Vertical", 0),
    Sketcher.Constraint("Horizontal", 1),
    Sketcher.Constraint("Vertical", 2),
    Sketcher.Constraint("Horizontal", 3),
    Sketcher.Constraint("DistanceX", 1, 1, 1, 2, 30.0),
    Sketcher.Constraint("DistanceY", 0, 1, 0, 2, 85.0),
    Sketcher.Constraint("DistanceX", -1, 1, 0, 2, 121.448385),
    Sketcher.Constraint("DistanceY", -1, 1, 0, 2, 194.860415),
])
sketch18.setExpression("Constraints[8]", "Params.sketch18_width")
sketch18.setExpression("Constraints[9]", "Params.sketch18_height")
pocket8 = doc.addObject("PartDesign::Pocket", "Pocket007")
body.addObject(pocket8)
pocket8.Profile = sketch18
pocket8.setExpression("Length", "Params.pocket8_length")
pocket8.Reversed = True

# Sketch on XY plane
sketch19 = doc.addObject("Sketcher::SketchObject", "Sketch018")
body.addObject(sketch19)
sketch19.AttachmentSupport = (doc.XY_Plane, [""])
sketch19.MapMode = "FlatFace"
sketch19.AttachmentOffset = App.Placement(V(0, 0, 196.860415), App.Rotation())
add_polygon(sketch19, [(129, 5), (129, -25), (143, -25), (143, 5)])  # lines 0-3
sketch19.addConstraint([
    Sketcher.Constraint("Vertical", 0),
    Sketcher.Constraint("Horizontal", 1),
    Sketcher.Constraint("Vertical", 2),
    Sketcher.Constraint("Horizontal", 3),
    Sketcher.Constraint("DistanceX", 1, 1, 1, 2, 14.0),
    Sketcher.Constraint("DistanceY", 0, 2, 0, 1, 30.0),
    Sketcher.Constraint("DistanceY", 0, 2, -1, 1, 25.0),
    Sketcher.Constraint("DistanceX", -1, 1, 0, 2, 129.448385),
])
sketch19.setExpression("Constraints[8]", "Params.sketch19_width")
sketch19.setExpression("Constraints[9]", "Params.sketch19_height")
pocket9 = doc.addObject("PartDesign::Pocket", "Pocket008")
body.addObject(pocket9)
pocket9.Profile = sketch19
pocket9.setExpression("Length", "Params.pocket9_length")

# Sketch on YZ plane
sketch20 = doc.addObject("Sketcher::SketchObject", "Sketch019")
body.addObject(sketch20)
sketch20.AttachmentSupport = (doc.YZ_Plane, [""])
sketch20.MapMode = "FlatFace"
sketch20.AttachmentOffset = App.Placement(V(0, 0, 153.448385), App.Rotation())
add_polygon(sketch20, [(-26, 187), (-26, 162), (-1, 174)])  # lines 0-2
add_polygon(sketch20, [(-26, 143), (-26, 118), (-1, 130)])  # lines 3-5
sketch20.addConstraint([
    Sketcher.Constraint("Vertical", 0),
    Sketcher.Constraint("Vertical", 3),
    Sketcher.Constraint("Parallel", 1, 4),
    Sketcher.Constraint("Parallel", 2, 5),
    Sketcher.Constraint("Vertical", 2, 2, 3, 2),
    Sketcher.Constraint("Vertical", 1, 2, 4, 2),
    Sketcher.Constraint("Equal", 1, 2),
    Sketcher.Constraint("DistanceY", 0, 2, 0, 1, 25.0),
    Sketcher.Constraint("DistanceX", 0, 2, 1, 2, 25.0),
    Sketcher.Constraint("DistanceY", 3, 2, 0, 2, 44.0),
    Sketcher.Constraint("DistanceX", 0, 2, -1, 1, 25.637481),
    Sketcher.Constraint("DistanceY", -1, 1, 0, 2, 161.860415),
])
sketch20.setExpression("Constraints[13]", "Params.sketch20_height")
pocket10 = doc.addObject("PartDesign::Pocket", "Pocket009")
body.addObject(pocket10)
pocket10.Profile = sketch20
pocket10.setExpression("Length", "Params.pocket10_length")

doc.recompute()
